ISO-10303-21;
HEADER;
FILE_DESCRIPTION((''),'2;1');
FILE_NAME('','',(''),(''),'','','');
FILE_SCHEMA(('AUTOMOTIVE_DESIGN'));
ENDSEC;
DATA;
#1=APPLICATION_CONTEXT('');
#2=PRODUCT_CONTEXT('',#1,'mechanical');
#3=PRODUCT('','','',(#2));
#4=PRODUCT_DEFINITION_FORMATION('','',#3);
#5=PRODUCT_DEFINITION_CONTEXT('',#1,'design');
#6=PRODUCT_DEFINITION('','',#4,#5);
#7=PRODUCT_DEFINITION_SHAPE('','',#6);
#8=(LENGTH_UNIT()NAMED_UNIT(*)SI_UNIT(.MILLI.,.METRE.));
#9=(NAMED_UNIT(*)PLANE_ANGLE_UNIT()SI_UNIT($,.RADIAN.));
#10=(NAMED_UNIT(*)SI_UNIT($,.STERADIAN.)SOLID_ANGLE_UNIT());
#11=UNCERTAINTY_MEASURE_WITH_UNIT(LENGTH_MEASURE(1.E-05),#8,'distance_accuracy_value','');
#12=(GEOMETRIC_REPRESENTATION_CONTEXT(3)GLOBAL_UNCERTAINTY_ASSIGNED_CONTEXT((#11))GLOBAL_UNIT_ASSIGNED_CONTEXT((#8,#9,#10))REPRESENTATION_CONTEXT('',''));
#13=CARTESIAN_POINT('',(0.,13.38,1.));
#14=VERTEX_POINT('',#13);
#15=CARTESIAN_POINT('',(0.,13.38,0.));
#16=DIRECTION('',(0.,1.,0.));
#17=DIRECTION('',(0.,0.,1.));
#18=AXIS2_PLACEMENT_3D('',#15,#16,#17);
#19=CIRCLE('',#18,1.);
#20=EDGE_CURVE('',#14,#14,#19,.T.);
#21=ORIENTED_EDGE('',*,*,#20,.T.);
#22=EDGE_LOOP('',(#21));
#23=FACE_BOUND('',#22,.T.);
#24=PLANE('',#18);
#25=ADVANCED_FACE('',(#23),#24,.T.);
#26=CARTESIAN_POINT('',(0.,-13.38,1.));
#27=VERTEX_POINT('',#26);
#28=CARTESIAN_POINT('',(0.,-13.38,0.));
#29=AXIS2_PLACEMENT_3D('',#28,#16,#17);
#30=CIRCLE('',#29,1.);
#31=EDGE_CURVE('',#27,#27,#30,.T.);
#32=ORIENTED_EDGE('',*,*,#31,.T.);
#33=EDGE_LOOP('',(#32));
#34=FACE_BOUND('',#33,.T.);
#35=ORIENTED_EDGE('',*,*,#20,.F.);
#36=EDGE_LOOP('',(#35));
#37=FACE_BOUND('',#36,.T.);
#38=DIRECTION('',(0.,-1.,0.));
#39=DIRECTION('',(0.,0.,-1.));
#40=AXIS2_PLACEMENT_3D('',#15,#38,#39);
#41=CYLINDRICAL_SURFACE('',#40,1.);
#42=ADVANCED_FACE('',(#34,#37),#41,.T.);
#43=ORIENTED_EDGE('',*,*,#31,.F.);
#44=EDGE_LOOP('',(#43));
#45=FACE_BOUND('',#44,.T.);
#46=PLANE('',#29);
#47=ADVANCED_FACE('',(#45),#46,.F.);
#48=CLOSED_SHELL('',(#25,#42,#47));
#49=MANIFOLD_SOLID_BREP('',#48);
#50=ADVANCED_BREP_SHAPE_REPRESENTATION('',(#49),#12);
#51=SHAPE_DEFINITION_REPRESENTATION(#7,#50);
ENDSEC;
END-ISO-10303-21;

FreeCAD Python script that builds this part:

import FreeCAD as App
import Part
import Sketcher

V = App.Vector
Q = App.Units.Quantity

doc = App.newDocument("Part")
body = doc.addObject("PartDesign::Body", "Body")

sketch1 = doc.addObject("Sketcher::SketchObject", "Sketch")
body.addObject(sketch1)
sketch1.AttachmentSupport = (doc.XZ_Plane, [""])
sketch1.MapMode = "FlatFace"
sketch1.addGeometry(Part.Circle(V(0, 0, 0), V(0, 0, 1), 1), False)
sketch1.addConstraint([
    Sketcher.Constraint("Coincident", 0, 3, -1, 1),
    Sketcher.Constraint("Diameter", 0, Q("2 mm")),
])
pad1 = doc.addObject("PartDesign::Pad", "Pad")
body.addObject(pad1)
pad1.Profile = sketch1
pad1.Length = 26.76
pad1.Midplane = True

doc.recompute()
